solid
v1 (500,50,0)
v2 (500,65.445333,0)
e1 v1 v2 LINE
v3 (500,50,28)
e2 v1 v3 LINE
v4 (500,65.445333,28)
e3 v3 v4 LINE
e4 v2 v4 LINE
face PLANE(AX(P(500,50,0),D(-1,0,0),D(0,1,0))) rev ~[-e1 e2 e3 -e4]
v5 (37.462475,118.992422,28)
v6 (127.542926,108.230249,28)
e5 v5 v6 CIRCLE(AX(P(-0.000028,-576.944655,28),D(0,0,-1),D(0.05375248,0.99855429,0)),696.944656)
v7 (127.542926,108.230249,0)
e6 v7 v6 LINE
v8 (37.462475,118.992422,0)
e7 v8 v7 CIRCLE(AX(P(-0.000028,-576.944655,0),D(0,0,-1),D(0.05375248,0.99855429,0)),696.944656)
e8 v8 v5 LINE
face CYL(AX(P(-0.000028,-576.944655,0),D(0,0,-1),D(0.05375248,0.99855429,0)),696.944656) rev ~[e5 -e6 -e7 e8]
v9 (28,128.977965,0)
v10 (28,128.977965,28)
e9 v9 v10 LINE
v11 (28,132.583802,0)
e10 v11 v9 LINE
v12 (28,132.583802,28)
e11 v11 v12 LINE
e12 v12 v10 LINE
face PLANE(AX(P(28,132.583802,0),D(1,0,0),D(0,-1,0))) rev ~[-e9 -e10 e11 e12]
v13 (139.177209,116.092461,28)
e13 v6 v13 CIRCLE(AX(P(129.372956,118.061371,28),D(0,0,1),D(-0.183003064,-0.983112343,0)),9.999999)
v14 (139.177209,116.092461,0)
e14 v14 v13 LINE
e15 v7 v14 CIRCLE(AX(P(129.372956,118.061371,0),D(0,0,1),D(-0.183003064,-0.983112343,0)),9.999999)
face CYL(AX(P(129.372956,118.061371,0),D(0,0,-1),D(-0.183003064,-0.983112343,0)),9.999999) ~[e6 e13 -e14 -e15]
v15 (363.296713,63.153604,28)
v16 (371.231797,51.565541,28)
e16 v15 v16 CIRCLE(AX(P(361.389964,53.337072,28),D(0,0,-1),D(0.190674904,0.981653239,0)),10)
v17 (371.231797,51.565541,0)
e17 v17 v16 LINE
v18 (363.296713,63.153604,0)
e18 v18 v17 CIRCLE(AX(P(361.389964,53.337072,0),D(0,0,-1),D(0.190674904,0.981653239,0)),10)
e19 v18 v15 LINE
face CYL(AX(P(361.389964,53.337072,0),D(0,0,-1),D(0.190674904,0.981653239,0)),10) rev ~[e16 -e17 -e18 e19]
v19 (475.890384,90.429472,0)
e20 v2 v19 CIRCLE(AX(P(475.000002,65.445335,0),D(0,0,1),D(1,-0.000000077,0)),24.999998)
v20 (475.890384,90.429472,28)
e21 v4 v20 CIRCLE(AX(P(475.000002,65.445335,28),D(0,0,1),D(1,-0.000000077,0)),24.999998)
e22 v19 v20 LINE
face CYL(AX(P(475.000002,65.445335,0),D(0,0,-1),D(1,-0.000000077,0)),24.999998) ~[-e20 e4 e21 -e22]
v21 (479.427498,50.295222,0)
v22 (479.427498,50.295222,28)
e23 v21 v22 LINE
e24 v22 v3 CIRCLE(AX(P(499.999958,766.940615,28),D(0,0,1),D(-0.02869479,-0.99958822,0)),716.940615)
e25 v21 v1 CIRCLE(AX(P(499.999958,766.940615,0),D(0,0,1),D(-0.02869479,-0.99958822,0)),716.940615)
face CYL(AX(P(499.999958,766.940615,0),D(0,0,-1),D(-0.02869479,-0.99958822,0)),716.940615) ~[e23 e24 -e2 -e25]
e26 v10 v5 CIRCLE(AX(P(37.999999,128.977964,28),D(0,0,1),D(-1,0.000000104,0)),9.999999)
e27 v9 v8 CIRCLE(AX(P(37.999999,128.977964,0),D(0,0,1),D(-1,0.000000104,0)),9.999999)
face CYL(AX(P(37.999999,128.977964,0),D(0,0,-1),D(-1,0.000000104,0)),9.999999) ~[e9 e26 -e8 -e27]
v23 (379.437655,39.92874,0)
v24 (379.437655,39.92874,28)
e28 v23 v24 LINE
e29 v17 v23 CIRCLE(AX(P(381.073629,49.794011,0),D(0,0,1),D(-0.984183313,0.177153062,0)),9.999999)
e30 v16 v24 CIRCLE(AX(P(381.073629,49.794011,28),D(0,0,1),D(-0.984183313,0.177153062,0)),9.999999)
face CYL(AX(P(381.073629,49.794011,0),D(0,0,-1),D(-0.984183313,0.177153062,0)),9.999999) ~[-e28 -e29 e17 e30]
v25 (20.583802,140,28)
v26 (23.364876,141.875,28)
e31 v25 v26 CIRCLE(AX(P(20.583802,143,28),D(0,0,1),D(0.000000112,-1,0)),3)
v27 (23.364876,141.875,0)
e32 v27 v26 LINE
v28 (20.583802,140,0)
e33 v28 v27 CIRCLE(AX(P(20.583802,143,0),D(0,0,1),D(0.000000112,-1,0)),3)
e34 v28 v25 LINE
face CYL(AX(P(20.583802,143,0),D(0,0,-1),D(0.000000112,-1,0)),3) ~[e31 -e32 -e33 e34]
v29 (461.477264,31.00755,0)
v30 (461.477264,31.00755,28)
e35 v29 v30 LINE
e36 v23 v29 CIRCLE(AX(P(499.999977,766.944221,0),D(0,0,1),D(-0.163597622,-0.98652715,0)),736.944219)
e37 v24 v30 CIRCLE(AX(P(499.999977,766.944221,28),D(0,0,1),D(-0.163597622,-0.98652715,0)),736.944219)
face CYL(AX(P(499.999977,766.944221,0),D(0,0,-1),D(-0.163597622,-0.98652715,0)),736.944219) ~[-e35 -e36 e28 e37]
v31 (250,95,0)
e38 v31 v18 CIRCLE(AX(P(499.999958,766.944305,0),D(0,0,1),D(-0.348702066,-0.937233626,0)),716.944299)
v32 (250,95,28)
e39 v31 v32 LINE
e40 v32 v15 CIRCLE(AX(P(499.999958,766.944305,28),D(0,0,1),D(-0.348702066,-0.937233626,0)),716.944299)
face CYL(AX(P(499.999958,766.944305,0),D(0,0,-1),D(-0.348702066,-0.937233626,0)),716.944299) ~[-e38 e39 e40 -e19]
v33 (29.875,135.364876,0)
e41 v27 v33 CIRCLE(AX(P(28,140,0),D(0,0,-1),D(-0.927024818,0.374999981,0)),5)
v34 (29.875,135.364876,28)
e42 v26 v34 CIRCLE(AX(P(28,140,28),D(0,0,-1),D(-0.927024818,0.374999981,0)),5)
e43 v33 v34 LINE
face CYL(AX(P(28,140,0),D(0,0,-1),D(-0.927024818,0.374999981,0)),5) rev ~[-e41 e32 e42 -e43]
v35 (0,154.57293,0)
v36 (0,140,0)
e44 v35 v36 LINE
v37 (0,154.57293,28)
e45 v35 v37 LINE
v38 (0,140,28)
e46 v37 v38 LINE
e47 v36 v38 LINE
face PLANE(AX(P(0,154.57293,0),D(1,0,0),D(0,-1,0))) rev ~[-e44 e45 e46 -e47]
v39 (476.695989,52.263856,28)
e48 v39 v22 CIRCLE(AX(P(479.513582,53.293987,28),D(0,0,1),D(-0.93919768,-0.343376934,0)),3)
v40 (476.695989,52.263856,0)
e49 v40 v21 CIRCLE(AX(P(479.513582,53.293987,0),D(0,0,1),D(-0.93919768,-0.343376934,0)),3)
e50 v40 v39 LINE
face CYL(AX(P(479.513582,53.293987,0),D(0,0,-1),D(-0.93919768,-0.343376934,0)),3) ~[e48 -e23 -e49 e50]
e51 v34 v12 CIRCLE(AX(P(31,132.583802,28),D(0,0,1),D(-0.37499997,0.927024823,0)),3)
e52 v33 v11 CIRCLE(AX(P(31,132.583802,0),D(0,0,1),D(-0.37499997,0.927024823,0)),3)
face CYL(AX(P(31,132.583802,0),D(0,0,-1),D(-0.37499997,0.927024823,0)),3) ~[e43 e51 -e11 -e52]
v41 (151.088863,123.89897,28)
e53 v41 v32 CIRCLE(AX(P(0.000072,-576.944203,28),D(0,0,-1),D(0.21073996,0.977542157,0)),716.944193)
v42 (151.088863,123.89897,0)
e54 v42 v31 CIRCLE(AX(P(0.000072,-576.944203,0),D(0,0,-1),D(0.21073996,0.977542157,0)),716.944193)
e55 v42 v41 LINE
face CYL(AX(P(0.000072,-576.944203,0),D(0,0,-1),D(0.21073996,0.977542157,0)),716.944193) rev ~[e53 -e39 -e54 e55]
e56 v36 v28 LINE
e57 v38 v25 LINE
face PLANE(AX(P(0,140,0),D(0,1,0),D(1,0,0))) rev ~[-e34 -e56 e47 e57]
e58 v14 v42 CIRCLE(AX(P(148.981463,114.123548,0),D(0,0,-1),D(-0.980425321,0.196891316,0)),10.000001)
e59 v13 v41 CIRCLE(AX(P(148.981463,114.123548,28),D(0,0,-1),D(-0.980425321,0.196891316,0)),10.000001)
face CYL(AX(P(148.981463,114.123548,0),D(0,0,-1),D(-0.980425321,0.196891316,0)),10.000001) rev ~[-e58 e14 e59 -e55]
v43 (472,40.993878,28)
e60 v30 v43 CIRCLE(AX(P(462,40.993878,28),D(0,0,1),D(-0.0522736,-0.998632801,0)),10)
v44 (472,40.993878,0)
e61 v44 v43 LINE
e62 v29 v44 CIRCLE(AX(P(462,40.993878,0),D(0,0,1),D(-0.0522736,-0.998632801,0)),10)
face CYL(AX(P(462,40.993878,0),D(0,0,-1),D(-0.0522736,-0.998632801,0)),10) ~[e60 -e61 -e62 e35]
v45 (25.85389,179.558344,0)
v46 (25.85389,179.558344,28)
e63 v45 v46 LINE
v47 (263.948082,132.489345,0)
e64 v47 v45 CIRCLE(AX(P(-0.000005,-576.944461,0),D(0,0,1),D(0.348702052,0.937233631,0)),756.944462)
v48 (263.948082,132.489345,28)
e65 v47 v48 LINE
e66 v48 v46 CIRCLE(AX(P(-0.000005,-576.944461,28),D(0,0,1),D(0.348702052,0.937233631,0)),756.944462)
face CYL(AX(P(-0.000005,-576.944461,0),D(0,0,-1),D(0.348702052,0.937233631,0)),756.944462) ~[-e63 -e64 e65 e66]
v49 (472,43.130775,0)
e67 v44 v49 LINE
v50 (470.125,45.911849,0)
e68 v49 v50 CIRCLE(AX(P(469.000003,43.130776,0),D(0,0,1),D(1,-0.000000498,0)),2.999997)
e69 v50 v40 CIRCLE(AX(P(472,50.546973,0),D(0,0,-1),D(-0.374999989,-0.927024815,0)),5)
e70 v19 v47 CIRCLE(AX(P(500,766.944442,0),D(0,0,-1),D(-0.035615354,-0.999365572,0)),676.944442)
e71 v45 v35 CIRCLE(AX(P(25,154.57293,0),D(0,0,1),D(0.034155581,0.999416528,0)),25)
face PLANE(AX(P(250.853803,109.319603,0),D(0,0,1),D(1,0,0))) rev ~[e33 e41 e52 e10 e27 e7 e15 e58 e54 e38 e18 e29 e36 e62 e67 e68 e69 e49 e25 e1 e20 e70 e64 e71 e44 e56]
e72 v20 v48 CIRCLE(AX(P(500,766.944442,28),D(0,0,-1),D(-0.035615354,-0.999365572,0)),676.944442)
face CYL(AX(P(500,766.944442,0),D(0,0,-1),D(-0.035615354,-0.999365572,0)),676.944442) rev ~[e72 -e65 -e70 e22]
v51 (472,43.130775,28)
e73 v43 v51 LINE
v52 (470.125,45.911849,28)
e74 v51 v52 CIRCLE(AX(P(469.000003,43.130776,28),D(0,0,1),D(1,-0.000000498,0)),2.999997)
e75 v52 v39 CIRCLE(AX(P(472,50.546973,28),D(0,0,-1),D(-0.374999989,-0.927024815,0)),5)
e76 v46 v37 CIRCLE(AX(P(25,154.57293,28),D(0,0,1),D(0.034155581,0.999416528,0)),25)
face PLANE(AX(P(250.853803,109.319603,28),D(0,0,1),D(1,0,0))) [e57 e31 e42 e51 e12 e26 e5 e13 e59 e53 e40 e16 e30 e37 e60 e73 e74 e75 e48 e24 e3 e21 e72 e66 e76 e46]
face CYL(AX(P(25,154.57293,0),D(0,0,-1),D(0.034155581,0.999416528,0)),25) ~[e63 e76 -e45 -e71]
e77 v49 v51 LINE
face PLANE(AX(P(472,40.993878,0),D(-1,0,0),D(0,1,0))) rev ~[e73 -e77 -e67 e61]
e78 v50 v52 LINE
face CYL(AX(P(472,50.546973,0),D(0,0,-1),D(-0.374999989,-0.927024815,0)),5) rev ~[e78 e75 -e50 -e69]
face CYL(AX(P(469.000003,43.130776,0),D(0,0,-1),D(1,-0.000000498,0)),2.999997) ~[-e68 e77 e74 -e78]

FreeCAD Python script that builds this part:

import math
import FreeCAD as App
import Part
import Sketcher

V = App.Vector

doc = App.newDocument("Part")
body = doc.addObject("PartDesign::Body", "Body")

# Sketch on XY plane
sketch1 = body.newObject("Sketcher::SketchObject", "Sketch")
sketch1.AttachmentSupport = (doc.getObject("XY_Plane"), [""])
sketch1.MapMode = "FlatFace"
sketch1.addGeometry(Part.ArcOfCircle(Part.Circle(V(0.000072, -576.944203, 0), V(0, 0, 1), 716.944193), math.radians(69.592051), math.radians(77.834281)), False)
sketch1.addGeometry(Part.ArcOfCircle(Part.Circle(V(499.999958, 766.944305, 0), V(0, 0, 1), 716.944299), math.radians(-110.407948), math.radians(-100.99217)), False)
sketch1.addGeometry(Part.ArcOfCircle(Part.Circle(V(361.389964, 53.337072, 0), V(0, 0, 1), 10), math.radians(-10.203978), math.radians(79.007827)), False)
sketch1.addGeometry(Part.ArcOfCircle(Part.Circle(V(381.073629, 49.794011, 0), V(0, 0, 1), 9.999999), math.radians(169.796023), math.radians(260.584235)), False)
sketch1.addGeometry(Part.ArcOfCircle(Part.Circle(V(499.999977, 766.944221, 0), V(0, 0, 1), 736.944219), math.radians(-99.415777), math.radians(-92.996421)), False)
sketch1.addGeometry(Part.ArcOfCircle(Part.Circle(V(462, 40.993878, 0), V(0, 0, 1), 10), math.radians(-92.996422), math.radians(0)), False)
sketch1.addGeometry(Part.LineSegment(V(472, 40.993878, 0), V(472, 43.130775, 0)), False)
sketch1.addGeometry(Part.ArcOfCircle(Part.Circle(V(469.000003, 43.130776, 0), V(0, 0, 1), 2.999997), math.radians(-0.000029), math.radians(67.975724)), False)
sketch1.addGeometry(Part.ArcOfCircle(Part.Circle(V(472, 50.546973, 0), V(0, 0, 1), 5), math.radians(20.082728), math.radians(247.975688)), False)
sketch1.addGeometry(Part.ArcOfCircle(Part.Circle(V(479.513582, 53.293987, 0), V(0, 0, 1), 3), math.radians(-159.917251), math.radians(-91.644313)), False)
sketch1.addGeometry(Part.ArcOfCircle(Part.Circle(V(499.999958, 766.940615, 0), V(0, 0, 1), 716.940615), math.radians(-91.644316), math.radians(-89.999997)), False)
sketch1.addGeometry(Part.LineSegment(V(500, 50, 0), V(500, 65.445333, 0)), False)
sketch1.addGeometry(Part.ArcOfCircle(Part.Circle(V(475.000002, 65.445335, 0), V(0, 0, 1), 24.999998), math.radians(-0.000004), math.radians(87.958964)), False)
sketch1.addGeometry(Part.ArcOfCircle(Part.Circle(V(500, 766.944442, 0), V(0, 0, 1), 676.944442), math.radians(-110.407948), math.radians(-92.041041)), False)
sketch1.addGeometry(Part.ArcOfCircle(Part.Circle(V(-0.000005, -576.944461, 0), V(0, 0, 1), 756.944462), math.radians(69.592053), math.radians(88.042647)), False)
sketch1.addGeometry(Part.ArcOfCircle(Part.Circle(V(25, 154.57293, 0), V(0, 0, 1), 25), math.radians(88.042649), math.radians(180.000001)), False)
sketch1.addGeometry(Part.LineSegment(V(0, 154.57293, 0), V(0, 140, 0)), False)
sketch1.addGeometry(Part.LineSegment(V(0, 140, 0), V(20.583802, 140, 0)), False)
sketch1.addGeometry(Part.ArcOfCircle(Part.Circle(V(20.583802, 143, 0), V(0, 0, 1), 3), math.radians(-89.999994), math.radians(-22.024311)), False)
sketch1.addGeometry(Part.ArcOfCircle(Part.Circle(V(28, 140, 0), V(0, 0, 1), 5), math.radians(-67.975688), math.radians(157.975688)), False)
sketch1.addGeometry(Part.ArcOfCircle(Part.Circle(V(31, 132.583802, 0), V(0, 0, 1), 3), math.radians(112.024311), math.radians(179.999994)), False)
sketch1.addGeometry(Part.LineSegment(V(28, 132.583802, 0), V(28, 128.977965, 0)), False)
sketch1.addGeometry(Part.ArcOfCircle(Part.Circle(V(37.999999, 128.977964, 0), V(0, 0, 1), 9.999999), math.radians(179.999994), math.radians(266.918729)), False)
sketch1.addGeometry(Part.ArcOfCircle(Part.Circle(V(-0.000028, -576.944655, 0), V(0, 0, 1), 696.944656), math.radians(79.455276), math.radians(86.918725)), False)
sketch1.addGeometry(Part.ArcOfCircle(Part.Circle(V(129.372956, 118.061371, 0), V(0, 0, 1), 9.999999), math.radians(-100.544729), math.radians(-11.355215)), False)
sketch1.addGeometry(Part.ArcOfCircle(Part.Circle(V(148.981463, 114.123548, 0), V(0, 0, 1), 10.000001), math.radians(77.834279), math.radians(168.64477)), False)
sketch1.addConstraint(Sketcher.Constraint("Coincident", 0, 1, 1, 1))
sketch1.addConstraint(Sketcher.Constraint("Coincident", 1, 2, 2, 2))
sketch1.addConstraint(Sketcher.Constraint("Coincident", 2, 1, 3, 1))
sketch1.addConstraint(Sketcher.Constraint("Coincident", 3, 2, 4, 1))
sketch1.addConstraint(Sketcher.Constraint("Coincident", 4, 2, 5, 1))
sketch1.addConstraint(Sketcher.Constraint("Coincident", 5, 2, 6, 1))
sketch1.addConstraint(Sketcher.Constraint("Coincident", 6, 2, 7, 1))
sketch1.addConstraint(Sketcher.Constraint("Coincident", 7, 2, 8, 2))
sketch1.addConstraint(Sketcher.Constraint("Coincident", 8, 1, 9, 1))
sketch1.addConstraint(Sketcher.Constraint("Coincident", 9, 2, 10, 1))
sketch1.addConstraint(Sketcher.Constraint("Coincident", 10, 2, 11, 1))
sketch1.addConstraint(Sketcher.Constraint("Coincident", 11, 2, 12, 1))
sketch1.addConstraint(Sketcher.Constraint("Coincident", 12, 2, 13, 2))
sketch1.addConstraint(Sketcher.Constraint("Coincident", 13, 1, 14, 1))
sketch1.addConstraint(Sketcher.Constraint("Coincident", 14, 2, 15, 1))
sketch1.addConstraint(Sketcher.Constraint("Coincident", 15, 2, 16, 1))
sketch1.addConstraint(Sketcher.Constraint("Coincident", 16, 2, 17, 1))
sketch1.addConstraint(Sketcher.Constraint("Coincident", 17, 2, 18, 1))
sketch1.addConstraint(Sketcher.Constraint("Coincident", 18, 2, 19, 2))
sketch1.addConstraint(Sketcher.Constraint("Coincident", 19, 1, 20, 1))
sketch1.addConstraint(Sketcher.Constraint("Coincident", 20, 2, 21, 1))
sketch1.addConstraint(Sketcher.Constraint("Coincident", 21, 2, 22, 1))
sketch1.addConstraint(Sketcher.Constraint("Coincident", 22, 2, 23, 2))
sketch1.addConstraint(Sketcher.Constraint("Coincident", 23, 1, 24, 1))
sketch1.addConstraint(Sketcher.Constraint("Coincident", 24, 2, 25, 2))
sketch1.addConstraint(Sketcher.Constraint("Coincident", 25, 1, 0, 2))
sketch1.addConstraint(Sketcher.Constraint("Vertical", 6))
sketch1.addConstraint(Sketcher.Constraint("Vertical", 11))
sketch1.addConstraint(Sketcher.Constraint("Vertical", 16))
sketch1.addConstraint(Sketcher.Constraint("Horizontal", 17))
sketch1.addConstraint(Sketcher.Constraint("Vertical", 21))
sketch1.addConstraint(Sketcher.Constraint("PointOnObject", 15, 2, -2))
sketch1.addConstraint(Sketcher.Constraint("Radius", 2, 10.0))
sketch1.addConstraint(Sketcher.Constraint("Radius", 3, 9.999999))
sketch1.addConstraint(Sketcher.Constraint("Radius", 5, 10.0))
sketch1.addConstraint(Sketcher.Constraint("Radius", 8, 5.0))
sketch1.addConstraint(Sketcher.Constraint("Radius", 9, 3.0))
sketch1.addConstraint(Sketcher.Constraint("Radius", 15, 25.0))
sketch1.addConstraint(Sketcher.Constraint("Radius", 18, 3.0))
sketch1.addConstraint(Sketcher.Constraint("Radius", 19, 5.0))
sketch1.addConstraint(Sketcher.Constraint("Radius", 20, 3.0))
sketch1.addConstraint(Sketcher.Constraint("Radius", 22, 9.999999))
sketch1.addConstraint(Sketcher.Constraint("Radius", 24, 9.999999))
sketch1.addConstraint(Sketcher.Constraint("Radius", 25, 10.000001))
sketch1.addConstraint(Sketcher.Constraint("DistanceX", -1, 1, 5, 3, 462.0))
sketch1.addConstraint(Sketcher.Constraint("DistanceX", -1, 1, 8, 3, 472.0))
sketch1.addConstraint(Sketcher.Constraint("DistanceX", -1, 1, 13, 3, 500.0))
sketch1.addConstraint(Sketcher.Constraint("DistanceY", -1, 1, 18, 3, 143.0))
sketch1.addConstraint(Sketcher.Constraint("DistanceX", -1, 1, 19, 3, 28.0))
sketch1.addConstraint(Sketcher.Constraint("DistanceY", -1, 1, 19, 3, 140.0))
sketch1.addConstraint(Sketcher.Constraint("DistanceX", -1, 1, 20, 3, 31.0))
sketch1.addConstraint(Sketcher.Constraint("DistanceX", -1, 1, 0, 1, 250.0))
sketch1.addConstraint(Sketcher.Constraint("DistanceY", -1, 1, 0, 1, 95.0))
sketch1.addConstraint(Sketcher.Constraint("DistanceY", -1, 1, 10, 2, 50.0))
sketch1.addConstraint(Sketcher.Constraint("DistanceX", -1, 1, 11, 2, 500.0))
sketch1.addConstraint(Sketcher.Constraint("DistanceX", 7, 3, 12, 3, 5.999999))
sketch1.addConstraint(Sketcher.Constraint("DistanceX", 15, 3, 12, 3, 450.000002))
sketch1.addConstraint(Sketcher.Constraint("Radius", 1, 716.944299))
sketch1.addConstraint(Sketcher.Constraint("Radius", 4, 736.944219))
sketch1.addConstraint(Sketcher.Constraint("DistanceX", 17, 1, 17, 2, 20.583802))
sketch1.addConstraint(Sketcher.Constraint("DistanceX", -1, 1, 7, 2, 470.125))
sketch1.addConstraint(Sketcher.Constraint("DistanceY", -1, 1, 18, 2, 141.875))
sketch1.addConstraint(Sketcher.Constraint("DistanceX", -1, 1, 19, 1, 29.875))
sketch1.addConstraint(Sketcher.Constraint("Radius", 0, 716.944193))
sketch1.addConstraint(Sketcher.Constraint("Radius", 10, 716.940615))
sketch1.addConstraint(Sketcher.Constraint("Radius", 13, 676.944442))
sketch1.addConstraint(Sketcher.Constraint("Radius", 14, 756.944462))
sketch1.addConstraint(Sketcher.Constraint("Radius", 23, 696.944656))
sketch1.addConstraint(Sketcher.Constraint("DistanceY", 16, 2, 16, 1, 14.57293))
sketch1.addConstraint(Sketcher.Constraint("DistanceY", -1, 1, 20, 2, 132.583802))
sketch1.addConstraint(Sketcher.Constraint("DistanceY", 5, 3, 7, 3, 2.136898))
sketch1.addConstraint(Sketcher.Constraint("DistanceY", 8, 3, 2, 3, 2.790099))
sketch1.addConstraint(Sketcher.Constraint("DistanceX", 23, 3, 0, 3, 0.000101))
sketch1.addConstraint(Sketcher.Constraint("DistanceY", 3, 2, 2, 1, 11.636801))
sketch1.addConstraint(Sketcher.Constraint("DistanceY", 5, 2, 7, 3, 2.136898))
sketch1.addConstraint(Sketcher.Constraint("DistanceY", 6, 2, 8, 3, 7.416198))
sketch1.addConstraint(Sketcher.Constraint("DistanceX", 8, 3, 9, 2, 7.427498))
sketch1.addConstraint(Sketcher.Constraint("DistanceX", 12, 2, 9, 3, 3.623198))
sketch1.addConstraint(Sketcher.Constraint("DistanceY", 8, 3, 12, 2, 39.882499))
sketch1.addConstraint(Sketcher.Constraint("DistanceY", 23, 1, 25, 3, 5.893299))
sketch1.addConstraint(Sketcher.Constraint("DistanceX", 25, 3, 25, 1, 2.1074))
sketch1.addConstraint(Sketcher.Constraint("DistanceY", 24, 3, 25, 1, 5.837599))
sketch1.addConstraint(Sketcher.Constraint("DistanceY", 11, 1, 11, 2, 15.445333))
sketch1.addConstraint(Sketcher.Constraint("DistanceY", 21, 2, 21, 1, 3.605837))
sketch1.addConstraint(Sketcher.Constraint("DistanceY", -1, 1, 2, 3, 53.337072))
sketch1.addConstraint(Sketcher.Constraint("DistanceX", -1, 1, 3, 3, 381.073629))
sketch1.addConstraint(Sketcher.Constraint("DistanceY", -1, 1, 3, 3, 49.794011))
sketch1.addConstraint(Sketcher.Constraint("DistanceX", -1, 1, 10, 3, 499.999958))
sketch1.addConstraint(Sketcher.Constraint("DistanceY", 14, 3, -1, 1, 576.944461))
sketch1.addConstraint(Sketcher.Constraint("DistanceY", -1, 1, 24, 3, 118.061371))
sketch1.addConstraint(Sketcher.Constraint("DistanceY", -1, 1, 2, 1, 51.565541))
sketch1.addConstraint(Sketcher.Constraint("DistanceY", -1, 1, 4, 2, 31.00755))
sketch1.addConstraint(Sketcher.Constraint("DistanceX", -1, 1, 8, 1, 476.695989))
sketch1.addConstraint(Sketcher.Constraint("DistanceX", -1, 1, 14, 2, 25.85389))
sketch1.addConstraint(Sketcher.Constraint("DistanceY", -1, 1, 22, 2, 118.992422))
sketch1.addConstraint(Sketcher.Constraint("DistanceX", -1, 1, 24, 2, 139.177209))
sketch1.addConstraint(Sketcher.Constraint("DistanceY", -1, 1, 24, 2, 116.092461))
sketch1.addConstraint(Sketcher.Constraint("DistanceX", 2, 3, 1, 2, 1.906749))
sketch1.addConstraint(Sketcher.Constraint("DistanceX", 25, 3, 13, 1, 114.966619))
pad1 = body.newObject("PartDesign::Pad", "Pad")
pad1.Profile = sketch1
pad1.Length = 28

doc.recompute()
